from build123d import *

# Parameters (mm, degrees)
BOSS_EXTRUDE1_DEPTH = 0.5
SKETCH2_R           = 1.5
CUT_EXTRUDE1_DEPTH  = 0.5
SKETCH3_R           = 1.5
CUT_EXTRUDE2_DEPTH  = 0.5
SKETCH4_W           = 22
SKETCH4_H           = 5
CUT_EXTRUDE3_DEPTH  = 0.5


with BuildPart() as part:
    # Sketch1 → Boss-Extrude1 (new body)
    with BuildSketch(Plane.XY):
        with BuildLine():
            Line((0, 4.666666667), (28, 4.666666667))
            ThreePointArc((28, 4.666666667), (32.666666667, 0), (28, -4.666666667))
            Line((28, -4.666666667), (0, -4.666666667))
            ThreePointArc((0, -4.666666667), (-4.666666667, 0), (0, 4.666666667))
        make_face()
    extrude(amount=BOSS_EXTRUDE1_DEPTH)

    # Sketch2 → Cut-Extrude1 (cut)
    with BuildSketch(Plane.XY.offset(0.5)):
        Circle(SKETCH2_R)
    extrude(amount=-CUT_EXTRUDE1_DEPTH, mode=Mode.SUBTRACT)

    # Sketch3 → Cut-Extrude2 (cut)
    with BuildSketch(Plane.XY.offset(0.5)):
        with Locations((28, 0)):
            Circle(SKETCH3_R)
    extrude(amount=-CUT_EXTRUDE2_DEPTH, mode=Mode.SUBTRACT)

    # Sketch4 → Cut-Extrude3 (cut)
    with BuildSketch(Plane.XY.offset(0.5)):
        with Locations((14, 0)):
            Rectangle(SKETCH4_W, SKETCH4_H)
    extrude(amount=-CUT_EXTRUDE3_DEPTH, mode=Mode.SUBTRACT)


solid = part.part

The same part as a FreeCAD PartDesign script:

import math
import FreeCAD as App
import Part
import Sketcher

V = App.Vector

doc = App.newDocument("Part")
body = doc.addObject("PartDesign::Body", "Body")

# Sketch on XY plane
sketch1 = body.newObject("Sketcher::SketchObject", "Sketch")
sketch1.AttachmentSupport = (doc.getObject("XY_Plane"), [""])
sketch1.MapMode = "FlatFace"
sketch1.addGeometry([
    Part.LineSegment(V(28, 4.7, 0), V(0, 4.7, 0)),
    Part.ArcOfCircle(Part.Circle(V(0, 0, 0), V(0, 0, 1), 4.7), math.radians(90), math.radians(270)),
    Part.LineSegment(V(0, -4.7, 0), V(28, -4.7, 0)),
    Part.ArcOfCircle(Part.Circle(V(28, 0, 0), V(0, 0, 1), 4.7), math.radians(-90), math.radians(90)),
], False)
sketch1.addConstraint([
    Sketcher.Constraint("Tangent", 0, 2, 1, 1),
    Sketcher.Constraint("Tangent", 1, 2, 2, 1),
    Sketcher.Constraint("Tangent", 2, 2, 3, 1),
    Sketcher.Constraint("Tangent", 3, 2, 0, 1),
    Sketcher.Constraint("Horizontal", 0),
    Sketcher.Constraint("Horizontal", 2),
    Sketcher.Constraint("Coincident", 1, 3, -1, 1),
    Sketcher.Constraint("DistanceX", 0, 2, 0, 1, 28.0),
    Sketcher.Constraint("Radius", 1, 4.666667),
])
pad1 = body.newObject("PartDesign::Pad", "Pad")
pad1.Profile = sketch1
pad1.Length = 0.5

# Sketch on XY plane
sketch2 = body.newObject("Sketcher::SketchObject", "Sketch001")
sketch2.AttachmentSupport = (doc.getObject("XY_Plane"), [""])
sketch2.MapMode = "FlatFace"
sketch2.AttachmentOffset = App.Placement(V(0, 0, 0.5), App.Rotation())
sketch2.addGeometry(Part.Circle(V(0, 0, 0), V(0, 0, 1), 1.5), False)
sketch2.addConstraint([
    Sketcher.Constraint("Coincident", 0, 3, -1, 1),
    Sketcher.Constraint("Diameter", 0, 3.0),
])
pocket1 = body.newObject("PartDesign::Pocket", "Pocket")
pocket1.Profile = sketch2
pocket1.Length = 0.5

# Sketch on XY plane
sketch3 = body.newObject("Sketcher::SketchObject", "Sketch002")
sketch3.AttachmentSupport = (doc.getObject("XY_Plane"), [""])
sketch3.MapMode = "FlatFace"
sketch3.AttachmentOffset = App.Placement(V(0, 0, 0.5), App.Rotation())
sketch3.addGeometry(Part.Circle(V(28, 0, 0), V(0, 0, 1), 1.5), False)
sketch3.addConstraint([
    Sketcher.Constraint("PointOnObject", 0, 3, -1),
    Sketcher.Constraint("Diameter", 0, 3.0),
    Sketcher.Constraint("DistanceX", -1, 1, 0, 3, 28.0),
])
pocket2 = body.newObject("PartDesign::Pocket", "Pocket001")
pocket2.Profile = sketch3
pocket2.Length = 0.5

# Sketch on XY plane
sketch4 = body.newObject("Sketcher::SketchObject", "Sketch003")
sketch4.AttachmentSupport = (doc.getObject("XY_Plane"), [""])
sketch4.MapMode = "FlatFace"
sketch4.AttachmentOffset = App.Placement(V(0, 0, 0.5), App.Rotation())
sketch4.addGeometry([
    Part.LineSegment(V(3, 2, 0), V(3, -2, 0)),
    Part.LineSegment(V(3, -2, 0), V(25, -2, 0)),
    Part.LineSegment(V(25, -2, 0), V(25, 2, 0)),
    Part.LineSegment(V(25, 2, 0), V(3, 2, 0)),
], False)
sketch4.addConstraint([
    Sketcher.Constraint("Coincident", 0, 2, 1, 1),
    Sketcher.Constraint("Coincident", 1, 2, 2, 1),
    Sketcher.Constraint("Coincident", 2, 2, 3, 1),
    Sketcher.Constraint("Coincident", 3, 2, 0, 1),
    Sketcher.Constraint("Vertical", 0),
    Sketcher.Constraint("Horizontal", 1),
    Sketcher.Constraint("Vertical", 2),
    Sketcher.Constraint("Horizontal", 3),
    Sketcher.Constraint("DistanceX", 1, 1, 1, 2, 22.0),
    Sketcher.Constraint("DistanceY", 0, 2, 0, 1, 5.0),
    Sketcher.Constraint("DistanceX", -1, 1, 0, 2, 3.0),
    Sketcher.Constraint("DistanceY", 0, 2, -1, 1, 2.5),
])
pocket3 = body.newObject("PartDesign::Pocket", "Pocket002")
pocket3.Profile = sketch4
pocket3.Length = 0.5

doc.recompute()
